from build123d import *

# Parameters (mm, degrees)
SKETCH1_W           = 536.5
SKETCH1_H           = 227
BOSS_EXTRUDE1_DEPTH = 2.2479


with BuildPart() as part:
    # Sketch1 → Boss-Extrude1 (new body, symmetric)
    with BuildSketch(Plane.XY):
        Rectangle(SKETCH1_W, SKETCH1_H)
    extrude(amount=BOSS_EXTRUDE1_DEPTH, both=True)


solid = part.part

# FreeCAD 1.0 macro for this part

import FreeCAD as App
import Part
import Sketcher
Q = App.Units.Quantity


def add_polygon(sketch, points):
    """Adds a closed chain of lines whose ends are joined by coincident constraints."""
    first, n = sketch.GeometryCount, len(points)
    for a, b in zip(points, points[1:] + points[:1]):
        sketch.addGeometry(Part.LineSegment(App.Vector(*a, 0), App.Vector(*b, 0)), False)
    for i in range(n):
        sketch.addConstraint(Sketcher.Constraint("Coincident", first + i, 2, first + (i + 1) % n, 1))

doc = App.newDocument("Part")
body = doc.addObject("PartDesign::Body", "Body")

sketch1 = doc.addObject("Sketcher::SketchObject", "Sketch")
body.addObject(sketch1)
sketch1.AttachmentSupport = (doc.XY_Plane, [""])
sketch1.MapMode = "FlatFace"
add_polygon(sketch1, [(-268.25, 113.5), (-268.25, -113.5), (268.25, -113.5), (268.25, 113.5)])
sketch1.addConstraint(Sketcher.Constraint("Vertical", 0))
sketch1.addConstraint(Sketcher.Constraint("Horizontal", 1))
sketch1.addConstraint(Sketcher.Constraint("Vertical", 2))
sketch1.addConstraint(Sketcher.Constraint("Horizontal", 3))
sketch1.addConstraint(Sketcher.Constraint("Symmetric", 0, 2, 2, 2, -1, 1))
sketch1.addConstraint(Sketcher.Constraint("DistanceY", 0, 2, 0, 1, Q("227 mm")))
sketch1.addConstraint(Sketcher.Constraint("DistanceX", 1, 1, 1, 2, Q("536.5 mm")))
pad1 = doc.addObject("PartDesign::Pad", "Pad")
body.addObject(pad1)
pad1.Profile = sketch1
pad1.Length = 4.4958
pad1.Midplane = True

doc.recompute()
